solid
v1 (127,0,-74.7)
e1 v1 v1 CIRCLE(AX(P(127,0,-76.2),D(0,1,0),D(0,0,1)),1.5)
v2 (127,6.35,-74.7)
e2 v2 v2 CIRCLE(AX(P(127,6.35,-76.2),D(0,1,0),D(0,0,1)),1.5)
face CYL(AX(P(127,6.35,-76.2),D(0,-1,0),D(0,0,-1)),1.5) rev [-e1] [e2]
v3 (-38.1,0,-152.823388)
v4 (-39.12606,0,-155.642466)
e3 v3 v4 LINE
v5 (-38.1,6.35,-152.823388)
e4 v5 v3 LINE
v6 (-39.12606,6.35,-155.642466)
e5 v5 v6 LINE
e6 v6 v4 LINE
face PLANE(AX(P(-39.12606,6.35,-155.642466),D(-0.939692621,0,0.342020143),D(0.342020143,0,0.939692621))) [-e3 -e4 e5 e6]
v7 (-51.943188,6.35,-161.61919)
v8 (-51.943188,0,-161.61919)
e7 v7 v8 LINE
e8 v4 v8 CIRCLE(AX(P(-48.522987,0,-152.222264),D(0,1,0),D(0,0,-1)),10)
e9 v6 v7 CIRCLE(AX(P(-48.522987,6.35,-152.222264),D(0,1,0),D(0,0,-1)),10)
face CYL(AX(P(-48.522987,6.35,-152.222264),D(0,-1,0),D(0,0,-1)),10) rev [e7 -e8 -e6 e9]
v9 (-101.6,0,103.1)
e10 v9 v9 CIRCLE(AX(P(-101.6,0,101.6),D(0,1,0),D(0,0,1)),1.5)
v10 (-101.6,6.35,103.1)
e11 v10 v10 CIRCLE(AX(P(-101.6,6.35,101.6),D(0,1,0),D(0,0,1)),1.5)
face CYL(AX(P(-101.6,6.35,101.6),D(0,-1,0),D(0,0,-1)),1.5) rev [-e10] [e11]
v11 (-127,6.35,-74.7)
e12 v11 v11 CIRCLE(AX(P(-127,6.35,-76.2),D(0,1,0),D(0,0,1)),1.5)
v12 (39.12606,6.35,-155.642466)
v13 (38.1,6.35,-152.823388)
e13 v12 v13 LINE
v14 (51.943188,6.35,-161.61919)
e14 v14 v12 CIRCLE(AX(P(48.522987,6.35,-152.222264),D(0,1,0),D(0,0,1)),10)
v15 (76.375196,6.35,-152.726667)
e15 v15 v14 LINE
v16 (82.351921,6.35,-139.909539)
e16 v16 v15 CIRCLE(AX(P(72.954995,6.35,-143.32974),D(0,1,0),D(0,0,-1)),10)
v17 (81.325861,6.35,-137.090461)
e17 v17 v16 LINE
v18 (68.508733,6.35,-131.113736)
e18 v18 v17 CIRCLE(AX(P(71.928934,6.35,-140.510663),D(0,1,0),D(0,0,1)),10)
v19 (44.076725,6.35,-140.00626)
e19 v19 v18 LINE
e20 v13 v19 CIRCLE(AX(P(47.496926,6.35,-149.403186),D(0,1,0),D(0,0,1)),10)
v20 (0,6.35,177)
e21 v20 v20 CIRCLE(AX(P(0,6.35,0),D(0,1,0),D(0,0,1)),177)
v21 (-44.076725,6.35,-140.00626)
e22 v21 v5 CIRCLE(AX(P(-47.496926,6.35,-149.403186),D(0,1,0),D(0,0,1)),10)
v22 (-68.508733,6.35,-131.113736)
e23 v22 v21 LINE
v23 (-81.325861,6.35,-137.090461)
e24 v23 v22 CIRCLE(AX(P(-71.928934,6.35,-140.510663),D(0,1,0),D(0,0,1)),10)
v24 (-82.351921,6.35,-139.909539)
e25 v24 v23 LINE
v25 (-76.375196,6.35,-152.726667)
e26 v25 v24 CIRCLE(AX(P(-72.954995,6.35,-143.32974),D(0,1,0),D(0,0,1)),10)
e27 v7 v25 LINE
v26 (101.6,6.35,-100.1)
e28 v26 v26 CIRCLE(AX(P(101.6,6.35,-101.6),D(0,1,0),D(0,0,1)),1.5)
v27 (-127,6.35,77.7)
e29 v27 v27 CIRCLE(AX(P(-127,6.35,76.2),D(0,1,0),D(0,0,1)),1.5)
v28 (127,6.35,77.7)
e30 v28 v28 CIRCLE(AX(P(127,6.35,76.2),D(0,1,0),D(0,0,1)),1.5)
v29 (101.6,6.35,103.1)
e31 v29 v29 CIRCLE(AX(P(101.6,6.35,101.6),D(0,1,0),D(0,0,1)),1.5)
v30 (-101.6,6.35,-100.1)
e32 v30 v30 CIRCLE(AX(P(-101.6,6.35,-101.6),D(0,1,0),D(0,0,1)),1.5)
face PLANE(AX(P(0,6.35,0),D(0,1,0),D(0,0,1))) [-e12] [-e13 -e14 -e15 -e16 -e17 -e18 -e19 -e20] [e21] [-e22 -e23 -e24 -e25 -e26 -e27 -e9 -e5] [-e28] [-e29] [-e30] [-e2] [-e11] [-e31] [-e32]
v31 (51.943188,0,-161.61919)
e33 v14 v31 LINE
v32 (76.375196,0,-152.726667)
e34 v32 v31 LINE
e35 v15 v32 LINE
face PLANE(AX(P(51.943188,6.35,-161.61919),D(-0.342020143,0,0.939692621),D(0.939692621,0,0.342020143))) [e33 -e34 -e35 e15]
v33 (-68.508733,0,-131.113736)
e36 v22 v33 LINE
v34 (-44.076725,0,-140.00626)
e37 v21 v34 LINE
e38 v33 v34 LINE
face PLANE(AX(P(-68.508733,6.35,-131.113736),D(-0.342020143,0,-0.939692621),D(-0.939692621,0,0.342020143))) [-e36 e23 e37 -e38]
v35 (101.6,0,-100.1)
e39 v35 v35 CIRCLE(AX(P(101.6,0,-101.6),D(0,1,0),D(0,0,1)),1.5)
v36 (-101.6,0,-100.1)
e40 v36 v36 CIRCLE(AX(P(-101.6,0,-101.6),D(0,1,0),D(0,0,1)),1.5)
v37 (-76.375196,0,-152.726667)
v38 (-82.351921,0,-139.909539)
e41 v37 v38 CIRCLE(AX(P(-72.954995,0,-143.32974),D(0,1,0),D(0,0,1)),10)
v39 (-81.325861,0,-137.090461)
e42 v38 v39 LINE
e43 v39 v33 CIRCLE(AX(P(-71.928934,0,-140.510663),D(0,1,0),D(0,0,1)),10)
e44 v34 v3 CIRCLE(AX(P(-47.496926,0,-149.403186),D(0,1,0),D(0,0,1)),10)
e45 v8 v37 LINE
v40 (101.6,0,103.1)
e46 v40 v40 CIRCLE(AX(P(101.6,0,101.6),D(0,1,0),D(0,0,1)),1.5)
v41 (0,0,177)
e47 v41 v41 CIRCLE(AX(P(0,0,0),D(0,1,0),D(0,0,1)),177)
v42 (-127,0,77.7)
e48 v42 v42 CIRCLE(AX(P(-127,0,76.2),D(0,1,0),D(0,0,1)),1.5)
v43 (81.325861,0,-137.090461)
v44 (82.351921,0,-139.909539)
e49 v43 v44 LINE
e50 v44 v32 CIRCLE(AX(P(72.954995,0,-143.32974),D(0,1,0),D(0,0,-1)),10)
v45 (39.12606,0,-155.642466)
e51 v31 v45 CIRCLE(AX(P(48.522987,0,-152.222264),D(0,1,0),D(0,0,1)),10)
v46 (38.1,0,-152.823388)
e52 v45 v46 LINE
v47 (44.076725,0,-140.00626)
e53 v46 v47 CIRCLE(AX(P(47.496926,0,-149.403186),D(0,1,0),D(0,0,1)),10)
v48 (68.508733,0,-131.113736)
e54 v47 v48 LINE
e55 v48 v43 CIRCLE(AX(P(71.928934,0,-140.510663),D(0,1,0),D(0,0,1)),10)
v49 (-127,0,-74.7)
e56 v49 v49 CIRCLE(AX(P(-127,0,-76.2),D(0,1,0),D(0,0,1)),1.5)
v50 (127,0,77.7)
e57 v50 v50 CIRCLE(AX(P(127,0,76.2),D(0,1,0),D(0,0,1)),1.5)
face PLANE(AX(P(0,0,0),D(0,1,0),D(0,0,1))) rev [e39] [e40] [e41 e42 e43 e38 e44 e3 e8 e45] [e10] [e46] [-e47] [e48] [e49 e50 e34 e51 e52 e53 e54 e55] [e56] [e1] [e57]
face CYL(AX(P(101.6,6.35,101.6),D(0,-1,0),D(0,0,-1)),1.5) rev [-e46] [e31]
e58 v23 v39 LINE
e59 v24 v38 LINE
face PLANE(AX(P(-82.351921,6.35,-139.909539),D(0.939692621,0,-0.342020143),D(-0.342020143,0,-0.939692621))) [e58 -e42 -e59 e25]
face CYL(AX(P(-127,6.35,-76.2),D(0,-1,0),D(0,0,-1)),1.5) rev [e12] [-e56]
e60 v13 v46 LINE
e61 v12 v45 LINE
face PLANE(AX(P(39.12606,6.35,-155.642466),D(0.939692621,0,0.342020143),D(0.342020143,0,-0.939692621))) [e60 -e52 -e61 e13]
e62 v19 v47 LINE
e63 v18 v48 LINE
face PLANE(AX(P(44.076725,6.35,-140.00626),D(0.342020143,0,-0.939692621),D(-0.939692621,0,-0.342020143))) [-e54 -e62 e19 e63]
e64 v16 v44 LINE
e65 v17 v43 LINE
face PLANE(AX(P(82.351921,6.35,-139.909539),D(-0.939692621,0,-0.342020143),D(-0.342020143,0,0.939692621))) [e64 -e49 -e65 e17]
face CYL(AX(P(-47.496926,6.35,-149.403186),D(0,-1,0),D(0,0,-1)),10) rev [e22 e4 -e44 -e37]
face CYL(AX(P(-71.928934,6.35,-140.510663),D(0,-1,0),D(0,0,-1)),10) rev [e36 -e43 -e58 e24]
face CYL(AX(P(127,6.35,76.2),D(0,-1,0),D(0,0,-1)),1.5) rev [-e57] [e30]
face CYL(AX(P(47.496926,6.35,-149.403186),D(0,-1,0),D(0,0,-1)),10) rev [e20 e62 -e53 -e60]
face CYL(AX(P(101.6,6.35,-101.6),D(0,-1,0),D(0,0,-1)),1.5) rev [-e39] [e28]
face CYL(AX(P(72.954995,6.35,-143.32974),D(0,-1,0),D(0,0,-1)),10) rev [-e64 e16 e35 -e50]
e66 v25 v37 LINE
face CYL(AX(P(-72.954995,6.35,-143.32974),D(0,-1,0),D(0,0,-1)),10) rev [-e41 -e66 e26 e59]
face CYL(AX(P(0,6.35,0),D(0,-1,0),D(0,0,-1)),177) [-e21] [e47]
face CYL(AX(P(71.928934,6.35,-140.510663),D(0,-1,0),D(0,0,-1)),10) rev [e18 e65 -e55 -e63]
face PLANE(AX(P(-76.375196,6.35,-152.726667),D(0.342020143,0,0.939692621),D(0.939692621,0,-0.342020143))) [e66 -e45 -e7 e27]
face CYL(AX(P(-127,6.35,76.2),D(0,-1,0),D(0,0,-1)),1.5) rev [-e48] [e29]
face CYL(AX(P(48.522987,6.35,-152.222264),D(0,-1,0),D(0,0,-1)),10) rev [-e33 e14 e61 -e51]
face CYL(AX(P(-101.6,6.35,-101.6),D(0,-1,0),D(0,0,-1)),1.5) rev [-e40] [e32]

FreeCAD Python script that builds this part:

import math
import FreeCAD as App
import Part
import Sketcher

V = App.Vector
Q = App.Units.Quantity

doc = App.newDocument("Part")
body = doc.addObject("PartDesign::Body", "Body")

# Sketch on XZ plane
sketch1 = body.newObject("Sketcher::SketchObject", "Sketch")
sketch1.AttachmentSupport = (doc.getObject("XZ_Plane"), [""])
sketch1.MapMode = "FlatFace"
sketch1.addGeometry(Part.Circle(V(0, 0, 0), V(0, 0, 1), 177), False)
sketch1.addGeometry(Part.Circle(V(-101.6, -101.6, 0), V(0, 0, 1), 1.5), False)
sketch1.addGeometry(Part.Circle(V(-127, -76.2, 0), V(0, 0, 1), 1.5), False)
sketch1.addGeometry(Part.ArcOfCircle(Part.Circle(V(-73, -143.3, 0), V(0, 0, 1), 10), math.radians(160), math.radians(250)), False)
sketch1.addGeometry(Part.LineSegment(V(-76.4, -152.7, 0), V(-51.9, -161.6, 0)), False)
sketch1.addGeometry(Part.ArcOfCircle(Part.Circle(V(-48.5, -152.2, 0), V(0, 0, 1), 10), math.radians(-110), math.radians(-20)), False)
sketch1.addGeometry(Part.LineSegment(V(-39.1, -155.6, 0), V(-38.1, -152.8, 0)), False)
sketch1.addGeometry(Part.ArcOfCircle(Part.Circle(V(-47.5, -149.4, 0), V(0, 0, 1), 10), math.radians(-20), math.radians(70)), False)
sketch1.addGeometry(Part.LineSegment(V(-44.1, -140, 0), V(-68.5, -131.1, 0)), False)
sketch1.addGeometry(Part.ArcOfCircle(Part.Circle(V(-71.9, -140.5, 0), V(0, 0, 1), 10), math.radians(70), math.radians(160)), False)
sketch1.addGeometry(Part.LineSegment(V(-81.3, -137.1, 0), V(-82.4, -139.9, 0)), False)
sketch1.addGeometry(Part.Circle(V(-127, 76.2, 0), V(0, 0, 1), 1.5), False)
sketch1.addGeometry(Part.Circle(V(-101.6, 101.6, 0), V(0, 0, 1), 1.5), False)
sketch1.addGeometry(Part.ArcOfCircle(Part.Circle(V(48.5, -152.2, 0), V(0, 0, 1), 10), math.radians(-160), math.radians(-70)), False)
sketch1.addGeometry(Part.LineSegment(V(51.9, -161.6, 0), V(76.4, -152.7, 0)), False)
sketch1.addGeometry(Part.ArcOfCircle(Part.Circle(V(73, -143.3, 0), V(0, 0, 1), 10), math.radians(-70), math.radians(20)), False)
sketch1.addGeometry(Part.LineSegment(V(82.4, -139.9, 0), V(81.3, -137.1, 0)), False)
sketch1.addGeometry(Part.ArcOfCircle(Part.Circle(V(71.9, -140.5, 0), V(0, 0, 1), 10), math.radians(20), math.radians(110)), False)
sketch1.addGeometry(Part.LineSegment(V(68.5, -131.1, 0), V(44.1, -140, 0)), False)
sketch1.addGeometry(Part.ArcOfCircle(Part.Circle(V(47.5, -149.4, 0), V(0, 0, 1), 10), math.radians(110), math.radians(200)), False)
sketch1.addGeometry(Part.LineSegment(V(38.1, -152.8, 0), V(39.1, -155.6, 0)), False)
sketch1.addGeometry(Part.Circle(V(101.6, -101.6, 0), V(0, 0, 1), 1.5), False)
sketch1.addGeometry(Part.Circle(V(127, -76.2, 0), V(0, 0, 1), 1.5), False)
sketch1.addGeometry(Part.Circle(V(101.6, 101.6, 0), V(0, 0, 1), 1.5), False)
sketch1.addGeometry(Part.Circle(V(127, 76.2, 0), V(0, 0, 1), 1.5), False)
sketch1.addConstraint(Sketcher.Constraint("Tangent", 3, 2, 4, 1))
sketch1.addConstraint(Sketcher.Constraint("Tangent", 4, 2, 5, 1))
sketch1.addConstraint(Sketcher.Constraint("Tangent", 5, 2, 6, 1))
sketch1.addConstraint(Sketcher.Constraint("Tangent", 6, 2, 7, 1))
sketch1.addConstraint(Sketcher.Constraint("Tangent", 7, 2, 8, 1))
sketch1.addConstraint(Sketcher.Constraint("Tangent", 8, 2, 9, 1))
sketch1.addConstraint(Sketcher.Constraint("Tangent", 9, 2, 10, 1))
sketch1.addConstraint(Sketcher.Constraint("Tangent", 10, 2, 3, 1))
sketch1.addConstraint(Sketcher.Constraint("Tangent", 13, 2, 14, 1))
sketch1.addConstraint(Sketcher.Constraint("Tangent", 14, 2, 15, 1))
sketch1.addConstraint(Sketcher.Constraint("Tangent", 15, 2, 16, 1))
sketch1.addConstraint(Sketcher.Constraint("Tangent", 16, 2, 17, 1))
sketch1.addConstraint(Sketcher.Constraint("Tangent", 17, 2, 18, 1))
sketch1.addConstraint(Sketcher.Constraint("Tangent", 18, 2, 19, 1))
sketch1.addConstraint(Sketcher.Constraint("Tangent", 19, 2, 20, 1))
sketch1.addConstraint(Sketcher.Constraint("Tangent", 20, 2, 13, 1))
sketch1.addConstraint(Sketcher.Constraint("Coincident", 0, 3, -1, 1))
sketch1.addConstraint(Sketcher.Constraint("Equal", 1, 2))
sketch1.addConstraint(Sketcher.Constraint("Equal", 3, 5))
sketch1.addConstraint(Sketcher.Constraint("Equal", 5, 7))
sketch1.addConstraint(Sketcher.Constraint("Equal", 7, 9))
sketch1.addConstraint(Sketcher.Constraint("Equal", 2, 11))
sketch1.addConstraint(Sketcher.Constraint("Equal", 11, 12))
sketch1.addConstraint(Sketcher.Constraint("Equal", 9, 13))
sketch1.addConstraint(Sketcher.Constraint("Equal", 13, 15))
sketch1.addConstraint(Sketcher.Constraint("Equal", 15, 17))
sketch1.addConstraint(Sketcher.Constraint("Equal", 17, 19))
sketch1.addConstraint(Sketcher.Constraint("Equal", 12, 21))
sketch1.addConstraint(Sketcher.Constraint("Equal", 21, 22))
sketch1.addConstraint(Sketcher.Constraint("Equal", 22, 23))
sketch1.addConstraint(Sketcher.Constraint("Equal", 23, 24))
sketch1.addConstraint(Sketcher.Constraint("Symmetric", 12, 3, 21, 3, -1, 1))
sketch1.addConstraint(Sketcher.Constraint("Symmetric", 11, 3, 22, 3, -1, 1))
sketch1.addConstraint(Sketcher.Constraint("Symmetric", 1, 3, 23, 3, -1, 1))
sketch1.addConstraint(Sketcher.Constraint("Symmetric", 2, 3, 24, 3, -1, 1))
sketch1.addConstraint(Sketcher.Constraint("Symmetric", 5, 3, 13, 3, -2))
sketch1.addConstraint(Sketcher.Constraint("Symmetric", 3, 3, 15, 3, -2))
sketch1.addConstraint(Sketcher.Constraint("Symmetric", 9, 3, 17, 3, -2))
sketch1.addConstraint(Sketcher.Constraint("Symmetric", 7, 3, 19, 3, -2))
sketch1.addConstraint(Sketcher.Constraint("Symmetric", 1, 3, 21, 3, -2))
sketch1.addConstraint(Sketcher.Constraint("Symmetric", 2, 3, 22, 3, -2))
sketch1.addConstraint(Sketcher.Constraint("Perpendicular", 4, 6))
sketch1.addConstraint(Sketcher.Constraint("Perpendicular", 6, 8))
sketch1.addConstraint(Sketcher.Constraint("Perpendicular", 8, 10))
sketch1.addConstraint(Sketcher.Constraint("Diameter", 0, 354.0))
sketch1.addConstraint(Sketcher.Constraint("Diameter", 1, 3.0))
sketch1.addConstraint(Sketcher.Constraint("Radius", 3, 10.0))
sketch1.addConstraint(Sketcher.Constraint("Angle", 4, Q("-20 deg")))
sketch1.addConstraint(Sketcher.Constraint("Distance", 4, 26.0))
sketch1.addConstraint(Sketcher.Constraint("Distance", 6, 3.0))
sketch1.addConstraint(Sketcher.Constraint("DistanceX", 2, 3, -1, 1, 127.0))
sketch1.addConstraint(Sketcher.Constraint("DistanceX", 1, 3, -1, 1, 101.6))
sketch1.addConstraint(Sketcher.Constraint("DistanceY", 1, 3, -1, 1, 101.6))
sketch1.addConstraint(Sketcher.Constraint("DistanceY", 2, 3, -1, 1, 76.2))
sketch1.addConstraint(Sketcher.Constraint("DistanceX", 6, 2, -1, 1, 38.1))
sketch1.addConstraint(Sketcher.Constraint("DistanceY", 3, 3, -1, 1, 143.32974))
pad1 = body.newObject("PartDesign::Pad", "Pad")
pad1.Profile = sketch1
pad1.Length = 6.35
pad1.Reversed = True

doc.recompute()
